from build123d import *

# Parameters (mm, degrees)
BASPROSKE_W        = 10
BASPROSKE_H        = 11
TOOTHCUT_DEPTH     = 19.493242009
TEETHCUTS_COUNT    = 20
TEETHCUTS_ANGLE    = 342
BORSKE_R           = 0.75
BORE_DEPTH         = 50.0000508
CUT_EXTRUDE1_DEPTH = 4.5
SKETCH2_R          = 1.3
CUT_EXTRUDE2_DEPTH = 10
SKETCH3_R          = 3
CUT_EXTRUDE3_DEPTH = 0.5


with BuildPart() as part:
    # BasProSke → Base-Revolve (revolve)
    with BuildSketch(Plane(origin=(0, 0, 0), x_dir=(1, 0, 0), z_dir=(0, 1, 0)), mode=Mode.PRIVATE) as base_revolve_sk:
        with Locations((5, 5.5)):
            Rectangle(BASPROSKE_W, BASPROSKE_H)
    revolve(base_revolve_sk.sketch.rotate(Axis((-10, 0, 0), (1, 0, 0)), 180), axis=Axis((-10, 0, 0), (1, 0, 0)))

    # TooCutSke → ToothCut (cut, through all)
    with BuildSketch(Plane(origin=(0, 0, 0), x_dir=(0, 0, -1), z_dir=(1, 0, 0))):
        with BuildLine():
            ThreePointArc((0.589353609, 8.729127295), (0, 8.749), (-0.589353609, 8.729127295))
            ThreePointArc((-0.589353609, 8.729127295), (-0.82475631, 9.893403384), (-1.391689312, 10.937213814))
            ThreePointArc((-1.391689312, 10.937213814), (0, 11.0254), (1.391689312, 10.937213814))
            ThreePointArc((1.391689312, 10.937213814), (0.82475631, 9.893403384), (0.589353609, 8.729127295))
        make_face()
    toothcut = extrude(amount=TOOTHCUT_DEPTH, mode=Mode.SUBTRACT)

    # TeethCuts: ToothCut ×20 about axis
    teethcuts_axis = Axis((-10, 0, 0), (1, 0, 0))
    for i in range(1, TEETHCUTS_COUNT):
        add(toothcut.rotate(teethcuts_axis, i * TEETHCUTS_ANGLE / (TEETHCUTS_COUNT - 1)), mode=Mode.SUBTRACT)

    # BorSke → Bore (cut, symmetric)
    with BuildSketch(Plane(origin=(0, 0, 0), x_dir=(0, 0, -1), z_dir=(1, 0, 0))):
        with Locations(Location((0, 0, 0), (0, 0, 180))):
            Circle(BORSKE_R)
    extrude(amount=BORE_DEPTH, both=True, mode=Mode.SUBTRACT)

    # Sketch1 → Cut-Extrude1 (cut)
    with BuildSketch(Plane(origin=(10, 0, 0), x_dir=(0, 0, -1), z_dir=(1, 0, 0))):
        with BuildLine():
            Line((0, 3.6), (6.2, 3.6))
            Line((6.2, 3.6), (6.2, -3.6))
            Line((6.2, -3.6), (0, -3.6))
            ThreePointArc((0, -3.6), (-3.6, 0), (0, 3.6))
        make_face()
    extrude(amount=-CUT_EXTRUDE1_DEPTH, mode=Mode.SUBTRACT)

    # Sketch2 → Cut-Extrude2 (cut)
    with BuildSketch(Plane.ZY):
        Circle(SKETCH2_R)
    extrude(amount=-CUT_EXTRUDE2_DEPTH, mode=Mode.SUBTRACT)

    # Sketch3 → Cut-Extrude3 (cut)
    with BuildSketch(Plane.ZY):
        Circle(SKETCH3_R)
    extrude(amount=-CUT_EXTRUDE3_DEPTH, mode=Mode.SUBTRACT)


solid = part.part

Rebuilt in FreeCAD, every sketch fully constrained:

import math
import FreeCAD as App
import Part
import Sketcher
from FreeCAD import Vector

doc = App.newDocument("Part")
params = doc.addObject("Spreadsheet::Sheet", "Params")
for row, (alias, value) in enumerate([
    ("sketch1_width", "10 mm"),
    ("sketch1_height", "11 mm"),
    ("revolution_angle", "360 deg"),
    ("sketch2_radius", "4 mm"),
    ("sketch3_diameter", "1.5 mm"),
    ("pocket2_length", "100.000102 mm"),
    ("sketch4_radius", "3.6 mm"),
    ("sketch4_height", "6.2 mm"),
    ("pocket3_length", "4.5 mm"),
    ("sketch5_diameter", "2.6 mm"),
    ("pocket4_length", "10 mm"),
    ("sketch6_diameter", "6 mm"),
    ("pocket5_length", "0.5 mm"),
], start=1):
    params.set(f"A{row}", alias)
    params.set(f"B{row}", "=" + value)
    params.setAlias(f"B{row}", alias)

body = doc.addObject("PartDesign::Body", "Body")

# Sketch on XZ plane
sketch1 = body.newObject("Sketcher::SketchObject", "Sketch")
sketch1.AttachmentSupport = (doc.getObject("XZ_Plane"), [""])
sketch1.MapMode = "FlatFace"
sketch1.addGeometry([
    Part.LineSegment(Vector(0, -11, 0), Vector(0, 0, 0)),
    Part.LineSegment(Vector(0, 0, 0), Vector(10, 0, 0)),
    Part.LineSegment(Vector(10, 0, 0), Vector(10, -11, 0)),
    Part.LineSegment(Vector(10, -11, 0), Vector(0, -11, 0)),
], False)
sketch1.addConstraint([
    Sketcher.Constraint("Coincident", 0, 2, 1, 1),
    Sketcher.Constraint("Coincident", 1, 2, 2, 1),
    Sketcher.Constraint("Coincident", 2, 2, 3, 1),
    Sketcher.Constraint("Coincident", 3, 2, 0, 1),
    Sketcher.Constraint("Vertical", 0),
    Sketcher.Constraint("Horizontal", 1),
    Sketcher.Constraint("Vertical", 2),
    Sketcher.Constraint("Horizontal", 3),
    Sketcher.Constraint("Coincident", 0, 2, -1, 1),
    Sketcher.Constraint("DistanceX", 1, 1, 1, 2, 10.0),
    Sketcher.Constraint("DistanceY", 0, 1, 0, 2, 11.0),
])
sketch1.setExpression("Constraints[9]", "Params.sketch1_width")
sketch1.setExpression("Constraints[10]", "Params.sketch1_height")
revolution = body.newObject("PartDesign::Revolution", "Revolution")
revolution.Profile = sketch1
revolution.ReferenceAxis = (sketch1, ["H_Axis"])
revolution.setExpression("Angle", "Params.revolution_angle")

# Sketch on YZ plane
sketch2 = body.newObject("Sketcher::SketchObject", "Sketch001")
sketch2.AttachmentSupport = (doc.getObject("YZ_Plane"), [""])
sketch2.MapMode = "FlatFace"
sketch2.addGeometry([
    Part.ArcOfCircle(Part.Circle(Vector(0, 0, 0), Vector(0, 0, 1), 8.7), math.radians(-3.86), math.radians(3.86)),
    Part.ArcOfCircle(Part.Circle(Vector(8.5, -4.6, 0), Vector(0, 0, 1), 4), math.radians(53), math.radians(87)),
    Part.ArcOfCircle(Part.Circle(Vector(0, 0, 0), Vector(0, 0, 1), 11), math.radians(-7.25), math.radians(7.25)),
    Part.ArcOfCircle(Part.Circle(Vector(8.5, 4.6, 0), Vector(0, 0, 1), 4), math.radians(-87), math.radians(-53)),
], False)
sketch2.addConstraint([
    Sketcher.Constraint("Coincident", 0, 1, 1, 2),
    Sketcher.Constraint("Coincident", 1, 1, 2, 1),
    Sketcher.Constraint("Coincident", 2, 2, 3, 2),
    Sketcher.Constraint("Coincident", 3, 1, 0, 2),
    Sketcher.Constraint("Coincident", 0, 3, -1, 1),
    Sketcher.Constraint("Coincident", 2, 3, -1, 1),
    Sketcher.Constraint("Equal", 1, 3),
    Sketcher.Constraint("Symmetric", 1, 3, 3, 3, -1),
    Sketcher.Constraint("Radius", 1, 4.0),
    Sketcher.Constraint("Radius", 0, 8.749),
    Sketcher.Constraint("Radius", 2, 11.0254),
    Sketcher.Constraint("DistanceX", -1, 1, 1, 3, 8.527341),
    Sketcher.Constraint("DistanceY", 1, 3, -1, 1, 4.584261),
])
sketch2.setExpression("Constraints[8]", "Params.sketch2_radius")
pocket1 = body.newObject("PartDesign::Pocket", "Pocket")
pocket1.Profile = sketch2
pocket1.Type = "ThroughAll"
pocket1.Reversed = True
doc.recompute()

polarpattern = body.newObject("PartDesign::PolarPattern", "PolarPattern")
polarpattern.Originals = [pocket1]
polarpattern.Axis = (doc.getObject("X_Axis"), [""])
polarpattern.Angle = 360
polarpattern.Occurrences = 20
body.Tip = polarpattern

# Sketch on YZ plane
sketch3 = body.newObject("Sketcher::SketchObject", "Sketch002")
sketch3.AttachmentSupport = (doc.getObject("YZ_Plane"), [""])
sketch3.MapMode = "FlatFace"
sketch3.addGeometry(Part.Circle(Vector(0, 0, 0), Vector(0, 0, 1), 0.8), False)
sketch3.addConstraint([
    Sketcher.Constraint("Coincident", 0, 3, -1, 1),
    Sketcher.Constraint("Diameter", 0, 1.5),
])
sketch3.setExpression("Constraints[1]", "Params.sketch3_diameter")
pocket2 = body.newObject("PartDesign::Pocket", "Pocket001")
pocket2.Profile = sketch3
pocket2.setExpression("Length", "Params.pocket2_length")
pocket2.Midplane = True

# Sketch on YZ plane
sketch4 = body.newObject("Sketcher::SketchObject", "Sketch003")
sketch4.AttachmentSupport = (doc.getObject("YZ_Plane"), [""])
sketch4.MapMode = "FlatFace"
sketch4.AttachmentOffset = App.Placement(Vector(0, 0, 10), App.Rotation())
sketch4.addGeometry([
    Part.LineSegment(Vector(3.6, -6.2, 0), Vector(3.6, 0, 0)),
    Part.ArcOfCircle(Part.Circle(Vector(0, 0, 0), Vector(0, 0, 1), 3.6), math.radians(0), math.radians(180)),
    Part.LineSegment(Vector(-3.6, 0, 0), Vector(-3.6, -6.2, 0)),
    Part.LineSegment(Vector(-3.6, -6.2, 0), Vector(3.6, -6.2, 0)),
], False)
sketch4.addConstraint([
    Sketcher.Constraint("Tangent", 0, 2, 1, 1),
    Sketcher.Constraint("Tangent", 1, 2, 2, 1),
    Sketcher.Constraint("Coincident", 2, 2, 3, 1),
    Sketcher.Constraint("Coincident", 3, 2, 0, 1),
    Sketcher.Constraint("Vertical", 0),
    Sketcher.Constraint("Vertical", 2),
    Sketcher.Constraint("Horizontal", 3),
    Sketcher.Constraint("Coincident", 1, 3, -1, 1),
    Sketcher.Constraint("Radius", 1, 3.6),
    Sketcher.Constraint("DistanceY", 0, 1, 0, 2, 6.2),
])
sketch4.setExpression("Constraints[8]", "Params.sketch4_radius")
sketch4.setExpression("Constraints[9]", "Params.sketch4_height")
pocket3 = body.newObject("PartDesign::Pocket", "Pocket002")
pocket3.Profile = sketch4
pocket3.setExpression("Length", "Params.pocket3_length")

# Sketch on YZ plane
sketch5 = body.newObject("Sketcher::SketchObject", "Sketch004")
sketch5.AttachmentSupport = (doc.getObject("YZ_Plane"), [""])
sketch5.MapMode = "FlatFace"
sketch5.addGeometry(Part.Circle(Vector(0, 0, 0), Vector(0, 0, 1), 1.3), False)
sketch5.addConstraint([
    Sketcher.Constraint("Coincident", 0, 3, -1, 1),
    Sketcher.Constraint("Diameter", 0, 2.6),
])
sketch5.setExpression("Constraints[1]", "Params.sketch5_diameter")
pocket4 = body.newObject("PartDesign::Pocket", "Pocket003")
pocket4.Profile = sketch5
pocket4.setExpression("Length", "Params.pocket4_length")
pocket4.Reversed = True

# Sketch on YZ plane
sketch6 = body.newObject("Sketcher::SketchObject", "Sketch005")
sketch6.AttachmentSupport = (doc.getObject("YZ_Plane"), [""])
sketch6.MapMode = "FlatFace"
sketch6.addGeometry(Part.Circle(Vector(0, 0, 0), Vector(0, 0, 1), 3), False)
sketch6.addConstraint([
    Sketcher.Constraint("Coincident", 0, 3, -1, 1),
    Sketcher.Constraint("Diameter", 0, 6.0),
])
sketch6.setExpression("Constraints[1]", "Params.sketch6_diameter")
pocket5 = body.newObject("PartDesign::Pocket", "Pocket004")
pocket5.Profile = sketch6
pocket5.setExpression("Length", "Params.pocket5_length")
pocket5.Reversed = True

doc.recompute()
